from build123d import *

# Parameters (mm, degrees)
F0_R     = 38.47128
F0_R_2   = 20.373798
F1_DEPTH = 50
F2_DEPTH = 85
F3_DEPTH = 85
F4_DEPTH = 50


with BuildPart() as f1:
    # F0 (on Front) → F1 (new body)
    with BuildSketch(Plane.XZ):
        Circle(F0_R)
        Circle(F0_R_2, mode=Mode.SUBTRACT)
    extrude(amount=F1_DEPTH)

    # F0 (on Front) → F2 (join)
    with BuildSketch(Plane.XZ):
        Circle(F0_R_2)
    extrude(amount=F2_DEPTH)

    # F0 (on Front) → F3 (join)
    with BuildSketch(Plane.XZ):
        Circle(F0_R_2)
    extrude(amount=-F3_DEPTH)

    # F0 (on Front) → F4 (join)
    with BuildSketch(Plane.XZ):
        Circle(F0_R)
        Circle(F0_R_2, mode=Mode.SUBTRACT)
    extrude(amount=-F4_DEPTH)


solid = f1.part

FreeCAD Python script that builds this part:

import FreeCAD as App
import Part
import Sketcher

V = App.Vector
Q = App.Units.Quantity

doc = App.newDocument("Part")
body = doc.addObject("PartDesign::Body", "Body")

# Sketch on XZ plane
sketch1 = body.newObject("Sketcher::SketchObject", "Sketch")
sketch1.AttachmentSupport = (doc.getObject("XZ_Plane"), [""])
sketch1.MapMode = "FlatFace"
sketch1.addGeometry([
    Part.Circle(V(0, 0, 0), V(0, 0, 1), 38),
    Part.Circle(V(0, 0, 0), V(0, 0, 1), 20),
], False)
sketch1.addConstraint([
    Sketcher.Constraint("Coincident", 0, 3, -1, 1),
    Sketcher.Constraint("Coincident", 1, 3, -1, 1),
    Sketcher.Constraint("Diameter", 0, Q("76.94256 mm")),
    Sketcher.Constraint("Diameter", 1, Q("40.747596 mm")),
])
pad1 = body.newObject("PartDesign::Pad", "Pad")
pad1.Profile = sketch1
pad1.Length = 50

# Sketch on XZ plane
sketch2 = body.newObject("Sketcher::SketchObject", "Sketch001")
sketch2.AttachmentSupport = (doc.getObject("XZ_Plane"), [""])
sketch2.MapMode = "FlatFace"
sketch2.addGeometry(Part.Circle(V(0, 0, 0), V(0, 0, 1), 20), False)
sketch2.addConstraint([
    Sketcher.Constraint("Coincident", 0, 3, -1, 1),
    Sketcher.Constraint("Diameter", 0, Q("40.747596 mm")),
])
pad2 = body.newObject("PartDesign::Pad", "Pad001")
pad2.Profile = sketch2
pad2.Length = 85

# Sketch on XZ plane
sketch3 = body.newObject("Sketcher::SketchObject", "Sketch002")
sketch3.AttachmentSupport = (doc.getObject("XZ_Plane"), [""])
sketch3.MapMode = "FlatFace"
sketch3.addGeometry(Part.Circle(V(0, 0, 0), V(0, 0, 1), 20), False)
sketch3.addConstraint([
    Sketcher.Constraint("Coincident", 0, 3, -1, 1),
    Sketcher.Constraint("Diameter", 0, Q("40.747596 mm")),
])
pad3 = body.newObject("PartDesign::Pad", "Pad002")
pad3.Profile = sketch3
pad3.Length = 85
pad3.Reversed = True

# Sketch on XZ plane
sketch4 = body.newObject("Sketcher::SketchObject", "Sketch003")
sketch4.AttachmentSupport = (doc.getObject("XZ_Plane"), [""])
sketch4.MapMode = "FlatFace"
sketch4.addGeometry([
    Part.Circle(V(0, 0, 0), V(0, 0, 1), 38),
    Part.Circle(V(0, 0, 0), V(0, 0, 1), 20),
], False)
sketch4.addConstraint([
    Sketcher.Constraint("Coincident", 0, 3, -1, 1),
    Sketcher.Constraint("Coincident", 1, 3, -1, 1),
    Sketcher.Constraint("Diameter", 0, Q("76.94256 mm")),
    Sketcher.Constraint("Diameter", 1, Q("40.747596 mm")),
])
pad4 = body.newObject("PartDesign::Pad", "Pad003")
pad4.Profile = sketch4
pad4.Length = 50
pad4.Reversed = True

doc.recompute()
